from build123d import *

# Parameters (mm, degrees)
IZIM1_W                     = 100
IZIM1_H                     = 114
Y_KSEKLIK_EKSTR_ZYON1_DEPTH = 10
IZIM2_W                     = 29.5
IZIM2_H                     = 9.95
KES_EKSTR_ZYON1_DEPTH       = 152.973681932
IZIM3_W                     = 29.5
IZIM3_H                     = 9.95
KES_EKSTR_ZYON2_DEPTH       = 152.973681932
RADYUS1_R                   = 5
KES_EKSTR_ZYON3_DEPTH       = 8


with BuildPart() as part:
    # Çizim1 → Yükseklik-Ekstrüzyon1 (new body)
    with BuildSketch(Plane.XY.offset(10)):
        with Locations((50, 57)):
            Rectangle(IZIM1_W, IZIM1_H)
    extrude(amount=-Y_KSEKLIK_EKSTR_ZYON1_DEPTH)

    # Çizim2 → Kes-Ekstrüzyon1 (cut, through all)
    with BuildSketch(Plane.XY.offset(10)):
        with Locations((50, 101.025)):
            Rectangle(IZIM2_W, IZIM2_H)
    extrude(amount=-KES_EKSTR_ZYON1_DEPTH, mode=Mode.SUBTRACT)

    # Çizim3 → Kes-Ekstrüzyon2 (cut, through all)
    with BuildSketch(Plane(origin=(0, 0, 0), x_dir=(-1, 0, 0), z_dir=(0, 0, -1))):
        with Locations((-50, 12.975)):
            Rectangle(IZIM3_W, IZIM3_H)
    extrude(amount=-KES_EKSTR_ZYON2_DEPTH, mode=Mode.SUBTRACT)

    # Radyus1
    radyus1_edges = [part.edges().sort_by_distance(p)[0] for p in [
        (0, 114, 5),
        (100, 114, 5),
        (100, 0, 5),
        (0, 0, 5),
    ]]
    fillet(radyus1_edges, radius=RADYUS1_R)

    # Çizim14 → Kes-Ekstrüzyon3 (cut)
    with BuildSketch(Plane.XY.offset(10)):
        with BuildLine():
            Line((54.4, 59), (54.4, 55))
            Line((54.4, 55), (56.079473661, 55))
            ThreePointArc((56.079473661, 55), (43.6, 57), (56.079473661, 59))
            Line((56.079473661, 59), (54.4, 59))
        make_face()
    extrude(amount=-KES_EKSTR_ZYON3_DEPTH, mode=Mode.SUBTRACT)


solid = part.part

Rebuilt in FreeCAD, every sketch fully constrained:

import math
import FreeCAD as App
import Part
import Sketcher


def edges_at(feature, points):
    """Names of the edges that pass closest to the given points."""
    edges = feature.Shape.Edges
    near = lambda p: min(range(len(edges)), key=lambda i: edges[i].distToShape(Part.Vertex(*p))[0])
    return sorted({f"Edge{near(p) + 1}" for p in points})


def add_polygon(sketch, points):
    """Adds a closed chain of lines whose ends are joined by coincident constraints."""
    first, n = sketch.GeometryCount, len(points)
    for a, b in zip(points, points[1:] + points[:1]):
        sketch.addGeometry(Part.LineSegment(App.Vector(*a, 0), App.Vector(*b, 0)), False)
    for i in range(n):
        sketch.addConstraint(Sketcher.Constraint("Coincident", first + i, 2, first + (i + 1) % n, 1))

doc = App.newDocument("Part")
body = doc.addObject("PartDesign::Body", "Body")

sketch1 = body.newObject("Sketcher::SketchObject", "Sketch")
sketch1.AttachmentSupport = (doc.getObject("XY_Plane"), [""])
sketch1.MapMode = "FlatFace"
sketch1.AttachmentOffset = App.Placement(App.Vector(0, 0, 10), App.Rotation())
add_polygon(sketch1, [(0, 114), (0, 0), (100, 0), (100, 114)])
sketch1.addConstraint(Sketcher.Constraint("Vertical", 0))
sketch1.addConstraint(Sketcher.Constraint("Horizontal", 1))
sketch1.addConstraint(Sketcher.Constraint("Vertical", 2))
sketch1.addConstraint(Sketcher.Constraint("Horizontal", 3))
sketch1.addConstraint(Sketcher.Constraint("Coincident", 0, 2, -1, 1))
sketch1.addConstraint(Sketcher.Constraint("DistanceX", 1, 1, 1, 2, 100.0))
sketch1.addConstraint(Sketcher.Constraint("DistanceY", 0, 2, 0, 1, 114.0))
pad1 = body.newObject("PartDesign::Pad", "Pad")
pad1.Profile = sketch1
pad1.Length = 10
pad1.Reversed = True

sketch2 = body.newObject("Sketcher::SketchObject", "Sketch001")
sketch2.AttachmentSupport = (doc.getObject("XY_Plane"), [""])
sketch2.MapMode = "FlatFace"
sketch2.AttachmentOffset = App.Placement(App.Vector(0, 0, 10), App.Rotation())
add_polygon(sketch2, [(35.25, 106), (35.25, 96.05), (64.75, 96.05), (64.75, 106)])
sketch2.addConstraint(Sketcher.Constraint("Vertical", 0))
sketch2.addConstraint(Sketcher.Constraint("Horizontal", 1))
sketch2.addConstraint(Sketcher.Constraint("Vertical", 2))
sketch2.addConstraint(Sketcher.Constraint("Horizontal", 3))
sketch2.addConstraint(Sketcher.Constraint("DistanceX", 1, 1, 1, 2, 29.5))
sketch2.addConstraint(Sketcher.Constraint("DistanceY", -1, 1, 2, 2, 106.0))
sketch2.addConstraint(Sketcher.Constraint("DistanceY", 0, 2, 0, 1, 9.95))
sketch2.addConstraint(Sketcher.Constraint("DistanceX", -1, 1, 0, 2, 35.25))
pocket1 = body.newObject("PartDesign::Pocket", "Pocket")
pocket1.Profile = sketch2
pocket1.Type = "ThroughAll"

sketch3 = body.newObject("Sketcher::SketchObject", "Sketch002")
sketch3.AttachmentSupport = (doc.getObject("XY_Plane"), [""])
sketch3.MapMode = "FlatFace"
add_polygon(sketch3, [(64.75, 17.95), (64.75, 8), (35.25, 8), (35.25, 17.95)])
sketch3.addConstraint(Sketcher.Constraint("Vertical", 0))
sketch3.addConstraint(Sketcher.Constraint("Horizontal", 1))
sketch3.addConstraint(Sketcher.Constraint("Vertical", 2))
sketch3.addConstraint(Sketcher.Constraint("Horizontal", 3))
sketch3.addConstraint(Sketcher.Constraint("DistanceX", 1, 2, 1, 1, 29.5))
sketch3.addConstraint(Sketcher.Constraint("DistanceY", -1, 1, 0, 2, 8.0))
sketch3.addConstraint(Sketcher.Constraint("DistanceY", 0, 2, 0, 1, 9.95))
sketch3.addConstraint(Sketcher.Constraint("DistanceX", -1, 1, 0, 2, 64.75))
pocket2 = body.newObject("PartDesign::Pocket", "Pocket001")
pocket2.Profile = sketch3
pocket2.Type = "ThroughAll"
pocket2.Reversed = True
doc.recompute()

fillet = body.newObject("PartDesign::Fillet", "Fillet")
fillet.Base = (pocket2, edges_at(pocket2, [
    (0, 114, 5),
    (100, 114, 5),
    (100, 0, 5),
    (0, 0, 5),
]))
fillet.Radius = 5

sketch4 = body.newObject("Sketcher::SketchObject", "Sketch003")
sketch4.AttachmentSupport = (doc.getObject("XY_Plane"), [""])
sketch4.MapMode = "FlatFace"
sketch4.AttachmentOffset = App.Placement(App.Vector(0, 0, 10), App.Rotation())
sketch4.addGeometry(Part.LineSegment(App.Vector(54.4, 55, 0), App.Vector(54.4, 59, 0)), False)
sketch4.addGeometry(Part.LineSegment(App.Vector(54.4, 59, 0), App.Vector(56.079474, 59, 0)), False)
sketch4.addGeometry(Part.ArcOfCircle(Part.Circle(App.Vector(50, 57, 0), App.Vector(0, 0, 1), 6.4), math.radians(18.209957), math.radians(341.790043)), False)
sketch4.addGeometry(Part.LineSegment(App.Vector(56.079474, 55, 0), App.Vector(54.4, 55, 0)), False)
sketch4.addConstraint(Sketcher.Constraint("Coincident", 0, 2, 1, 1))
sketch4.addConstraint(Sketcher.Constraint("Coincident", 1, 2, 2, 1))
sketch4.addConstraint(Sketcher.Constraint("Coincident", 2, 2, 3, 1))
sketch4.addConstraint(Sketcher.Constraint("Coincident", 3, 2, 0, 1))
sketch4.addConstraint(Sketcher.Constraint("Vertical", 0))
sketch4.addConstraint(Sketcher.Constraint("Horizontal", 1))
sketch4.addConstraint(Sketcher.Constraint("Horizontal", 3))
sketch4.addConstraint(Sketcher.Constraint("Vertical", 1, 2, 2, 2))
sketch4.addConstraint(Sketcher.Constraint("Radius", 2, 6.4))
sketch4.addConstraint(Sketcher.Constraint("DistanceY", 0, 1, 0, 2, 4.0))
sketch4.addConstraint(Sketcher.Constraint("DistanceX", -1, 1, 2, 3, 50.0))
sketch4.addConstraint(Sketcher.Constraint("DistanceY", -1, 1, 2, 3, 57.0))
sketch4.addConstraint(Sketcher.Constraint("DistanceX", -1, 1, 0, 2, 54.4))
pocket3 = body.newObject("PartDesign::Pocket", "Pocket002")
pocket3.Profile = sketch4
pocket3.Length = 8

doc.recompute()
